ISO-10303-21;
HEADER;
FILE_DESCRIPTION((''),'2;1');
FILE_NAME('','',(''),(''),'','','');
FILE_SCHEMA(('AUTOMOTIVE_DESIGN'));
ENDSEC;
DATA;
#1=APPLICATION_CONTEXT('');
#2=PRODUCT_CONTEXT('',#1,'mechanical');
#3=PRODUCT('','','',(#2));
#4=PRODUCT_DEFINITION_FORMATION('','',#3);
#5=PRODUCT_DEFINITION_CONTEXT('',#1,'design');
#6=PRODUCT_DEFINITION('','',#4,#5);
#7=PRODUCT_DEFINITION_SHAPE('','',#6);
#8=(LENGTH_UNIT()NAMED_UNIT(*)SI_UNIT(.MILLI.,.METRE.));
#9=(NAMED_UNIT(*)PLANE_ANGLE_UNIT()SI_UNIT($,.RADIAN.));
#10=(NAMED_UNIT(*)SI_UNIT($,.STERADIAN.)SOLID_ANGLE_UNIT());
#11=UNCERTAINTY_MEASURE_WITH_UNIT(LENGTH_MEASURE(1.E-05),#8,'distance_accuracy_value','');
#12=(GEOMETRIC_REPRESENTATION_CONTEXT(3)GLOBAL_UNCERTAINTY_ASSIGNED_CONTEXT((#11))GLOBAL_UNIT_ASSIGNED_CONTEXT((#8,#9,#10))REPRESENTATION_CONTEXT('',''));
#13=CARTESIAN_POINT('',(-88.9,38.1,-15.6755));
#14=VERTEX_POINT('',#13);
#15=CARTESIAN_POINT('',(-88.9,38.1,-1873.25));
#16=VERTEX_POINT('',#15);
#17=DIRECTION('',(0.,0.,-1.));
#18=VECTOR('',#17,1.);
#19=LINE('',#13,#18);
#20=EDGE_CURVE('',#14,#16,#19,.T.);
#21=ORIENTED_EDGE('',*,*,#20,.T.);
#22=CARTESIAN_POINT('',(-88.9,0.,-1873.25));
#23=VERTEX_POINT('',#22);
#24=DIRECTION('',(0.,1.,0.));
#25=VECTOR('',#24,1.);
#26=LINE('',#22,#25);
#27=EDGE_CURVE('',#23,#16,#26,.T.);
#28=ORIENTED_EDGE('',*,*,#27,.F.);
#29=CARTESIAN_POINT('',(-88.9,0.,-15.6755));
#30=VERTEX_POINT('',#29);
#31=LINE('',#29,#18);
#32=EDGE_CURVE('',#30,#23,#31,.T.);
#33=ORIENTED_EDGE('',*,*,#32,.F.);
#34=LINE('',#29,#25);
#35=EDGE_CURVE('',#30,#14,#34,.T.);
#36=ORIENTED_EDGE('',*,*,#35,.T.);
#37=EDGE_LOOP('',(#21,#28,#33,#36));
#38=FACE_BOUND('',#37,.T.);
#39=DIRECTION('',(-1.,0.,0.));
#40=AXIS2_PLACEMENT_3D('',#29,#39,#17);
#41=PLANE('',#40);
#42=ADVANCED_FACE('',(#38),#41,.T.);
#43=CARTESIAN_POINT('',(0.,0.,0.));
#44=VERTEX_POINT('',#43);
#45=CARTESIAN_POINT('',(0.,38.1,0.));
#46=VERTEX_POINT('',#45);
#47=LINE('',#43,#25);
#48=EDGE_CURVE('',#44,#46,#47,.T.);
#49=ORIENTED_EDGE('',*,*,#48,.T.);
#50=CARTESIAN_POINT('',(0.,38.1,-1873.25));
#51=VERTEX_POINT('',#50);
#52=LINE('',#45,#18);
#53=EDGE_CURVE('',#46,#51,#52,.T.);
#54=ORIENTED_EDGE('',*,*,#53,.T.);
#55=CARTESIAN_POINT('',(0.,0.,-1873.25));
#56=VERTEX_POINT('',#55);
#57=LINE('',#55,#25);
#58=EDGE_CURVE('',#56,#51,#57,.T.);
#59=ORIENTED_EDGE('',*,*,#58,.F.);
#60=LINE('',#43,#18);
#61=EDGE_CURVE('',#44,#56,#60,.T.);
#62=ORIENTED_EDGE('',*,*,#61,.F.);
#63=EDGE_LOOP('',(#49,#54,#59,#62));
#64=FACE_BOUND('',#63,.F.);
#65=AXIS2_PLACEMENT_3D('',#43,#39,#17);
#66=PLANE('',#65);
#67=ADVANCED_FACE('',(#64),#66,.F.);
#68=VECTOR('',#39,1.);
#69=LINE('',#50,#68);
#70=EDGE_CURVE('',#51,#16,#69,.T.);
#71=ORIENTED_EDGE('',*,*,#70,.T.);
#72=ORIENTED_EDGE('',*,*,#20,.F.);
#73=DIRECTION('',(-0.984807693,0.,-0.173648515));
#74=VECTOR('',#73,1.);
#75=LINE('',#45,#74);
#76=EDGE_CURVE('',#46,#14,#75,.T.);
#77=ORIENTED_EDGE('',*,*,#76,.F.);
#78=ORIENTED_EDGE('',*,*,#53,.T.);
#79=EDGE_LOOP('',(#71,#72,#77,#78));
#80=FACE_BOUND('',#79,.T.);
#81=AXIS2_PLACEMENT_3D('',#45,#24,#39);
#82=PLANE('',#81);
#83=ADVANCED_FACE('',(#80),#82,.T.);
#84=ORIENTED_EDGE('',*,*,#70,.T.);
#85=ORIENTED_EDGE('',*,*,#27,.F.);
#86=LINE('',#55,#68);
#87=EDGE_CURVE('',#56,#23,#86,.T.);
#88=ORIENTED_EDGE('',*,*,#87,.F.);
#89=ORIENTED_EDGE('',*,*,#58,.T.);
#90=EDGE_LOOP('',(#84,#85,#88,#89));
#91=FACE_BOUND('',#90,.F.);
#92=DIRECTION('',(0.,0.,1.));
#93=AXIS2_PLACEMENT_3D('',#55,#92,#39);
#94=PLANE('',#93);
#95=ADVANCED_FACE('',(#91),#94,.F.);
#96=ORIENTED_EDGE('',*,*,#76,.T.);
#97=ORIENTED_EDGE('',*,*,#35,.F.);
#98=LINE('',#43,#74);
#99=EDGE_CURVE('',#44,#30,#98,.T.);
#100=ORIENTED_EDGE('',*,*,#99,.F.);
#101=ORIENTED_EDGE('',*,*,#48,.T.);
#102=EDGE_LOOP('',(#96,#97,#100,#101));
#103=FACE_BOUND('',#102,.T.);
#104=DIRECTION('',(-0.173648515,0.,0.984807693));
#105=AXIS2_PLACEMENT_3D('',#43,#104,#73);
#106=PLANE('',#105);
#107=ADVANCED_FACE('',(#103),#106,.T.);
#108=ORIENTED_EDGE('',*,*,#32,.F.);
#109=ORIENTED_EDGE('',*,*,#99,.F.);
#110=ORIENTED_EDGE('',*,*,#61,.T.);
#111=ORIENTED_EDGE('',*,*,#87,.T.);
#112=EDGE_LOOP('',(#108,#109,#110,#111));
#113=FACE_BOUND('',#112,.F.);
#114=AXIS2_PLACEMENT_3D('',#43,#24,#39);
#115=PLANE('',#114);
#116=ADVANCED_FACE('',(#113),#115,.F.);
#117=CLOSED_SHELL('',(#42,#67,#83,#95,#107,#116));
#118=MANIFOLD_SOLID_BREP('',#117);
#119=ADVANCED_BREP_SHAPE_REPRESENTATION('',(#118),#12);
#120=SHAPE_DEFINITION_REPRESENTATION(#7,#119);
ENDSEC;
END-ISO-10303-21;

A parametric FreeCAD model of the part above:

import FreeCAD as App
import Part
import Sketcher
from FreeCAD import Vector
Q = App.Units.Quantity


def add_polygon(sketch, points):
    """Adds a closed chain of lines whose ends are joined by coincident constraints."""
    first, n = sketch.GeometryCount, len(points)
    for a, b in zip(points, points[1:] + points[:1]):
        sketch.addGeometry(Part.LineSegment(App.Vector(*a, 0), App.Vector(*b, 0)), False)
    for i in range(n):
        sketch.addConstraint(Sketcher.Constraint("Coincident", first + i, 2, first + (i + 1) % n, 1))

doc = App.newDocument("Part")
body = doc.addObject("PartDesign::Body", "Body")

# Sketch on XZ plane
sketch1 = body.newObject("Sketcher::SketchObject", "Sketch")
sketch1.AttachmentSupport = (doc.getObject("XZ_Plane"), [""])
sketch1.MapMode = "FlatFace"
add_polygon(sketch1, [(-89, -16), (0, 0), (0, -1873), (-89, -1873)])  # lines 0-3
sketch1.addConstraint([
    Sketcher.Constraint("Vertical", 1),
    Sketcher.Constraint("Horizontal", 2),
    Sketcher.Constraint("Vertical", 3),
    Sketcher.Constraint("Coincident", 0, 2, -1, 1),
    Sketcher.Constraint("DistanceX", 2, 2, 2, 1, Q("3.5 in")),
    Sketcher.Constraint("Angle", 0, Q("10 deg")),
    Sketcher.Constraint("DistanceY", 1, 2, 1, 1, Q("73.75 in")),
])
pad1 = body.newObject("PartDesign::Pad", "Pad")
pad1.Profile = sketch1
pad1.Length = Q("1.5 in")
pad1.Reversed = True

doc.recompute()
